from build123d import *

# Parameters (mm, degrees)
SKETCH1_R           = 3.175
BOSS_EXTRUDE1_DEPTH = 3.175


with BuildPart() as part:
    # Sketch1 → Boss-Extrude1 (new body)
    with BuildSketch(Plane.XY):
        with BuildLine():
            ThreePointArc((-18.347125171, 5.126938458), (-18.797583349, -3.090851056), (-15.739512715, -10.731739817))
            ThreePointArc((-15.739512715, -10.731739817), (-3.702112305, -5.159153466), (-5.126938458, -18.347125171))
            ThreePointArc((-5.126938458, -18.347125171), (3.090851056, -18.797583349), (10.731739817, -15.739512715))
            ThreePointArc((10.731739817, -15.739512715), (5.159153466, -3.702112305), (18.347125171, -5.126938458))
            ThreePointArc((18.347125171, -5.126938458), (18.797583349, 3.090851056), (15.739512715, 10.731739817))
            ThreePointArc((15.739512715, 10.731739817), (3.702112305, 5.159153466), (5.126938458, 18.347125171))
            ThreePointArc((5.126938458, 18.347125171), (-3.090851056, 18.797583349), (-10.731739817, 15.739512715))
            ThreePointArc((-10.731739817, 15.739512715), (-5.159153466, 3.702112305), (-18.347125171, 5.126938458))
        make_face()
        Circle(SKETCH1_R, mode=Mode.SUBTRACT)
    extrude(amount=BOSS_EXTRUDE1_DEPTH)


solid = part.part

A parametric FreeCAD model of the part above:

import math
import FreeCAD as App
import Part
import Sketcher
Q = App.Units.Quantity

doc = App.newDocument("Part")
body = doc.addObject("PartDesign::Body", "Body")

# Sketch on XY plane
sketch1 = body.newObject("Sketcher::SketchObject", "Sketch")
sketch1.AttachmentSupport = (doc.getObject("XY_Plane"), [""])
sketch1.MapMode = "FlatFace"
sketch1.addGeometry([
    Part.ArcOfCircle(Part.Circle(App.Vector(0, 0, 0), App.Vector(0, 0, 1), 19.05), math.radians(164.387459), math.radians(214.287508)),  # 0
    Part.ArcOfCircle(Part.Circle(App.Vector(-8.144647, -11.350138, 0), App.Vector(0, 0, 1), 7.62), math.radians(-66.670099), math.radians(175.345067)),  # 1
    Part.ArcOfCircle(Part.Circle(App.Vector(0, 0, 0), App.Vector(0, 0, 1), 19.05), math.radians(-105.612541), math.radians(-55.712492)),  # 2
    Part.ArcOfCircle(Part.Circle(App.Vector(11.350138, -8.144647, 0), App.Vector(0, 0, 1), 7.62), math.radians(23.329901), math.radians(265.345067)),  # 3
    Part.ArcOfCircle(Part.Circle(App.Vector(0, 0, 0), App.Vector(0, 0, 1), 19.05), math.radians(-15.612541), math.radians(34.287508)),  # 4
    Part.ArcOfCircle(Part.Circle(App.Vector(8.144647, 11.350138, 0), App.Vector(0, 0, 1), 7.62), math.radians(113.329901), math.radians(355.345067)),  # 5
    Part.ArcOfCircle(Part.Circle(App.Vector(0, 0, 0), App.Vector(0, 0, 1), 19.05), math.radians(74.387459), math.radians(124.287508)),  # 6
    Part.ArcOfCircle(Part.Circle(App.Vector(-11.350138, 8.144647, 0), App.Vector(0, 0, 1), 7.62), math.radians(-156.670099), math.radians(85.345067)),  # 7
    Part.Circle(App.Vector(0, 0, 0), App.Vector(0, 0, 1), 3.175),  # 8
], False)
sketch1.addConstraint([
    Sketcher.Constraint("Coincident", 0, 2, 1, 2),
    Sketcher.Constraint("Coincident", 1, 1, 2, 1),
    Sketcher.Constraint("Coincident", 2, 2, 3, 2),
    Sketcher.Constraint("Coincident", 3, 1, 4, 1),
    Sketcher.Constraint("Coincident", 4, 2, 5, 2),
    Sketcher.Constraint("Coincident", 5, 1, 6, 1),
    Sketcher.Constraint("Coincident", 6, 2, 7, 2),
    Sketcher.Constraint("Coincident", 7, 1, 0, 1),
    Sketcher.Constraint("Coincident", 0, 3, -1, 1),
    Sketcher.Constraint("Coincident", 2, 3, -1, 1),
    Sketcher.Constraint("Coincident", 4, 3, -1, 1),
    Sketcher.Constraint("Coincident", 6, 3, -1, 1),
    Sketcher.Constraint("Coincident", 8, 3, -1, 1),
    Sketcher.Constraint("Equal", 0, 2),
    Sketcher.Constraint("Equal", 1, 3),
    Sketcher.Constraint("Equal", 2, 4),
    Sketcher.Constraint("Equal", 3, 5),
    Sketcher.Constraint("Equal", 4, 6),
    Sketcher.Constraint("Equal", 5, 7),
    Sketcher.Constraint("Symmetric", 1, 3, 5, 3, -1, 1),
    Sketcher.Constraint("Symmetric", 3, 3, 7, 3, -1, 1),
    Sketcher.Constraint("Radius", 1, Q("0.3 in")),
    Sketcher.Constraint("Diameter", 8, Q("0.25 in")),
    Sketcher.Constraint("Radius", 0, Q("0.75 in")),
    Sketcher.Constraint("DistanceY", 0, 2, -1, 1, 10.73174),
    Sketcher.Constraint("DistanceX", 1, 1, -1, 1, 5.126938),
    Sketcher.Constraint("DistanceX", -1, 1, 2, 2, 10.73174),
    Sketcher.Constraint("DistanceY", 3, 1, -1, 1, 5.126938),
])
pad1 = body.newObject("PartDesign::Pad", "Pad")
pad1.Profile = sketch1
pad1.Length = Q("0.125 in")

doc.recompute()
